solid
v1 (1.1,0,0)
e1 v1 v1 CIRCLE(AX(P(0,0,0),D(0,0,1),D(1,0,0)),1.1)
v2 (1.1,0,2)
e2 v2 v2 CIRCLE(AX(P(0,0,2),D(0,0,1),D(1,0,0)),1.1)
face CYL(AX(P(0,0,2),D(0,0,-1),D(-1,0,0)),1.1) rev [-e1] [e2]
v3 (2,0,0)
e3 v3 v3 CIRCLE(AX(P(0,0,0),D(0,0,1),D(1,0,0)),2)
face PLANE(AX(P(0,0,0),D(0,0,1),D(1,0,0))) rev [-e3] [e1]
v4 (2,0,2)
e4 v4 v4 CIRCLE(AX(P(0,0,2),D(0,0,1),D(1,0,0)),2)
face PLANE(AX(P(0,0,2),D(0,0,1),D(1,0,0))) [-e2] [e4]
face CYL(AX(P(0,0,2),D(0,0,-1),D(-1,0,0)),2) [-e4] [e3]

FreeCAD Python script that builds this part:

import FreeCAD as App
import Part
import Sketcher
from FreeCAD import Vector

doc = App.newDocument("Part")
body = doc.addObject("PartDesign::Body", "Body")

# Sketch on XY plane
sketch1 = body.newObject("Sketcher::SketchObject", "Sketch")
sketch1.AttachmentSupport = (doc.getObject("XY_Plane"), [""])
sketch1.MapMode = "FlatFace"
sketch1.addGeometry([
    Part.Circle(Vector(0, 0, 0), Vector(0, 0, 1), 2),
    Part.Circle(Vector(0, 0, 0), Vector(0, 0, 1), 1.1),
], False)
sketch1.addConstraint([
    Sketcher.Constraint("Coincident", 0, 3, -1, 1),
    Sketcher.Constraint("Coincident", 1, 3, -1, 1),
    Sketcher.Constraint("Diameter", 0, 4.0),
    Sketcher.Constraint("Diameter", 1, 2.2),
])
pad1 = body.newObject("PartDesign::Pad", "Pad")
pad1.Profile = sketch1
pad1.Length = 2

doc.recompute()
